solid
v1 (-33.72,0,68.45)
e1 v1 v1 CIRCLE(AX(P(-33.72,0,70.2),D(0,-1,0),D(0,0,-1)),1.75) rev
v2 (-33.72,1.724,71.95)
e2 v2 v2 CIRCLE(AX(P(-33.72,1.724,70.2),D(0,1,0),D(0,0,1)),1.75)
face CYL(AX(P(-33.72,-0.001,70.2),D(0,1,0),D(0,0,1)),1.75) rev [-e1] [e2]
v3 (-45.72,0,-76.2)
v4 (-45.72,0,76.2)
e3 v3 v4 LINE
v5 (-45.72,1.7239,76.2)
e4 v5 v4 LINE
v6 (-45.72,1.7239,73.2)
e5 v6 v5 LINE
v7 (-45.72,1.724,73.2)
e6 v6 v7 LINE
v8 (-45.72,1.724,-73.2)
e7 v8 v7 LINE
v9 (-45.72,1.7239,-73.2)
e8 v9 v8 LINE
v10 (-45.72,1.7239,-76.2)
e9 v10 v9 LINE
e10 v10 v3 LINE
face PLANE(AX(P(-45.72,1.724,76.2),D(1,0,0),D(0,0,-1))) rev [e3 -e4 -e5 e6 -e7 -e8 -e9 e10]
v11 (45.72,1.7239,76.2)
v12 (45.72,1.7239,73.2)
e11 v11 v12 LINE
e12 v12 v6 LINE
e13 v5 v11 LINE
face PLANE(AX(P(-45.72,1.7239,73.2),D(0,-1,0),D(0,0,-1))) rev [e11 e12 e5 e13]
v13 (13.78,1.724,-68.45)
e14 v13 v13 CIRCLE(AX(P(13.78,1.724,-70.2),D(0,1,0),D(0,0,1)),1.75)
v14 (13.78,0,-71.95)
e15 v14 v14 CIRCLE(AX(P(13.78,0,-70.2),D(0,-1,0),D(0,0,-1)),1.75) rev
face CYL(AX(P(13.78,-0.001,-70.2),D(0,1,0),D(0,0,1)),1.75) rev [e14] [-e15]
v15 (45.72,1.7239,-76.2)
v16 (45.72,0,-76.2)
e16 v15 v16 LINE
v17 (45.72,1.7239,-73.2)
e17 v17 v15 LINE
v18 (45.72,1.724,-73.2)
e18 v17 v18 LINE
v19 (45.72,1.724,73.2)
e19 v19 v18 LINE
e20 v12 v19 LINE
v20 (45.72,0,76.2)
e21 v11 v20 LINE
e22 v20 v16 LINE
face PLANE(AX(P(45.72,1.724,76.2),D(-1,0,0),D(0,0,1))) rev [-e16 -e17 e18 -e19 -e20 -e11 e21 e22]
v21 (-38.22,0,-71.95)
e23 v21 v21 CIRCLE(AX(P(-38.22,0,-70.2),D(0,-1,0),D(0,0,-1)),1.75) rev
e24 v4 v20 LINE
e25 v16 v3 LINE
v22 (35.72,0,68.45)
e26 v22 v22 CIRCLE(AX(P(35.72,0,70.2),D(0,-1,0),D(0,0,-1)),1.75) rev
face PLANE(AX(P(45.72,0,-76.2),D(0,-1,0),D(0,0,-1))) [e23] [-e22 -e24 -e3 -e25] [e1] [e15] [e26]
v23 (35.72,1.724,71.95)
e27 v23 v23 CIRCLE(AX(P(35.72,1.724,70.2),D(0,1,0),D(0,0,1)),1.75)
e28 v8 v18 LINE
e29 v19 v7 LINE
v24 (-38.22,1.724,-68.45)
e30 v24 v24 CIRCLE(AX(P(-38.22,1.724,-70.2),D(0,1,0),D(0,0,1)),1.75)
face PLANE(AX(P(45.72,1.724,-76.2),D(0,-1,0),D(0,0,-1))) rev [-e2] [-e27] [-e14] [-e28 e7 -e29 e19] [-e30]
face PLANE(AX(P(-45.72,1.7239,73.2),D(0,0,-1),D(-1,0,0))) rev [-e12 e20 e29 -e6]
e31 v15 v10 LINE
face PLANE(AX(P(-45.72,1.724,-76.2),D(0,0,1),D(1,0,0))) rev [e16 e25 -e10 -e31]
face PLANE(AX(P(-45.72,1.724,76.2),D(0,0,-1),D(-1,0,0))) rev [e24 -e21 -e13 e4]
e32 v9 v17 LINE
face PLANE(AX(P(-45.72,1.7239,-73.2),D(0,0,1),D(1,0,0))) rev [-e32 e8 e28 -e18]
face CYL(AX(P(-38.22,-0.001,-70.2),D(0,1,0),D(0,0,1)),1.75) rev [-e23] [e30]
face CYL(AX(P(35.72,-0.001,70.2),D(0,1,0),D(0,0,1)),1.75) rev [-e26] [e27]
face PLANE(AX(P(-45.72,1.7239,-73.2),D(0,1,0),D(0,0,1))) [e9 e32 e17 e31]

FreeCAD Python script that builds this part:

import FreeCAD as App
import Part
import Sketcher

V = App.Vector

doc = App.newDocument("Part")
body = doc.addObject("PartDesign::Body", "Body")

# Sketch on XZ plane
sketch1 = doc.addObject("Sketcher::SketchObject", "Sketch")
body.addObject(sketch1)
sketch1.AttachmentSupport = (doc.XZ_Plane, [""])
sketch1.MapMode = "FlatFace"
sketch1.addGeometry(Part.LineSegment(V(-46, -76, 0), V(-46, 76, 0)), False)
sketch1.addGeometry(Part.LineSegment(V(-46, 76, 0), V(46, 76, 0)), False)
sketch1.addGeometry(Part.LineSegment(V(46, 76, 0), V(46, -76, 0)), False)
sketch1.addGeometry(Part.LineSegment(V(46, -76, 0), V(-46, -76, 0)), False)
sketch1.addConstraint(Sketcher.Constraint("Coincident", 0, 2, 1, 1))
sketch1.addConstraint(Sketcher.Constraint("Coincident", 1, 2, 2, 1))
sketch1.addConstraint(Sketcher.Constraint("Coincident", 2, 2, 3, 1))
sketch1.addConstraint(Sketcher.Constraint("Coincident", 3, 2, 0, 1))
sketch1.addConstraint(Sketcher.Constraint("Vertical", 0))
sketch1.addConstraint(Sketcher.Constraint("Horizontal", 1))
sketch1.addConstraint(Sketcher.Constraint("Vertical", 2))
sketch1.addConstraint(Sketcher.Constraint("Horizontal", 3))
sketch1.addConstraint(Sketcher.Constraint("Symmetric", 0, 2, 2, 2, -1, 1))
sketch1.addConstraint(Sketcher.Constraint("DistanceY", 0, 1, 0, 2, 152.4))
sketch1.addConstraint(Sketcher.Constraint("DistanceX", 1, 1, 1, 2, 91.44))
pad1 = doc.addObject("PartDesign::Pad", "Pad")
body.addObject(pad1)
pad1.Profile = sketch1
pad1.Length = 1.724
pad1.Reversed = True

# Sketch on XZ plane
sketch2 = doc.addObject("Sketcher::SketchObject", "Sketch001")
body.addObject(sketch2)
sketch2.AttachmentSupport = (doc.XZ_Plane, [""])
sketch2.MapMode = "FlatFace"
sketch2.AttachmentOffset = App.Placement(V(0, 0, -1.724), App.Rotation())
sketch2.addGeometry(Part.Circle(V(-38.2, -70.2, 0), V(0, 0, 1), 1.8), False)
sketch2.addConstraint(Sketcher.Constraint("Diameter", 0, 3.5))
sketch2.addConstraint(Sketcher.Constraint("DistanceY", 0, 3, -1, 1, 70.2))
sketch2.addConstraint(Sketcher.Constraint("DistanceX", 0, 3, -1, 1, 38.22))
pocket1 = doc.addObject("PartDesign::Pocket", "Pocket")
body.addObject(pocket1)
pocket1.Profile = sketch2
pocket1.Type = "UpToFirst"
pocket1.Reversed = True

# Sketch on XZ plane
sketch3 = doc.addObject("Sketcher::SketchObject", "Sketch002")
body.addObject(sketch3)
sketch3.AttachmentSupport = (doc.XZ_Plane, [""])
sketch3.MapMode = "FlatFace"
sketch3.AttachmentOffset = App.Placement(V(0, 0, -1.724), App.Rotation())
sketch3.addGeometry(Part.Circle(V(-33.7, 70.2, 0), V(0, 0, 1), 1.8), False)
sketch3.addConstraint(Sketcher.Constraint("Diameter", 0, 3.5))
sketch3.addConstraint(Sketcher.Constraint("DistanceY", -1, 1, 0, 3, 70.2))
sketch3.addConstraint(Sketcher.Constraint("DistanceX", 0, 3, -1, 1, 33.72))
pocket2 = doc.addObject("PartDesign::Pocket", "Pocket001")
body.addObject(pocket2)
pocket2.Profile = sketch3
pocket2.Type = "UpToFirst"
pocket2.Reversed = True

# Sketch on XZ plane
sketch4 = doc.addObject("Sketcher::SketchObject", "Sketch003")
body.addObject(sketch4)
sketch4.AttachmentSupport = (doc.XZ_Plane, [""])
sketch4.MapMode = "FlatFace"
sketch4.AttachmentOffset = App.Placement(V(0, 0, -1.724), App.Rotation())
sketch4.addGeometry(Part.Circle(V(35.7, 70.2, 0), V(0, 0, 1), 1.8), False)
sketch4.addConstraint(Sketcher.Constraint("Diameter", 0, 3.5))
sketch4.addConstraint(Sketcher.Constraint("DistanceY", -1, 1, 0, 3, 70.2))
sketch4.addConstraint(Sketcher.Constraint("DistanceX", -1, 1, 0, 3, 35.72))
pocket3 = doc.addObject("PartDesign::Pocket", "Pocket002")
body.addObject(pocket3)
pocket3.Profile = sketch4
pocket3.Type = "UpToFirst"
pocket3.Reversed = True

# Sketch on XZ plane
sketch5 = doc.addObject("Sketcher::SketchObject", "Sketch004")
body.addObject(sketch5)
sketch5.AttachmentSupport = (doc.XZ_Plane, [""])
sketch5.MapMode = "FlatFace"
sketch5.AttachmentOffset = App.Placement(V(0, 0, -1.724), App.Rotation())
sketch5.addGeometry(Part.Circle(V(13.8, -70.2, 0), V(0, 0, 1), 1.8), False)
sketch5.addConstraint(Sketcher.Constraint("Diameter", 0, 3.5))
sketch5.addConstraint(Sketcher.Constraint("DistanceY", 0, 3, -1, 1, 70.2))
sketch5.addConstraint(Sketcher.Constraint("DistanceX", -1, 1, 0, 3, 13.78))
pocket4 = doc.addObject("PartDesign::Pocket", "Pocket003")
body.addObject(pocket4)
pocket4.Profile = sketch5
pocket4.Type = "UpToFirst"
pocket4.Reversed = True

# Sketch on XZ plane
sketch6 = doc.addObject("Sketcher::SketchObject", "Sketch005")
body.addObject(sketch6)
sketch6.AttachmentSupport = (doc.XZ_Plane, [""])
sketch6.MapMode = "FlatFace"
sketch6.AttachmentOffset = App.Placement(V(0, 0, -1.724), App.Rotation())
sketch6.addGeometry(Part.LineSegment(V(-45.7, -76.2, 0), V(-45.7, -73.2, 0)), False)
sketch6.addGeometry(Part.LineSegment(V(-45.7, -73.2, 0), V(45.7, -73.2, 0)), False)
sketch6.addGeometry(Part.LineSegment(V(45.7, -73.2, 0), V(45.7, -76.2, 0)), False)
sketch6.addGeometry(Part.LineSegment(V(45.7, -76.2, 0), V(-45.7, -76.2, 0)), False)
sketch6.addGeometry(Part.LineSegment(V(-45.7, 73.2, 0), V(-45.7, 76.2, 0)), False)
sketch6.addGeometry(Part.LineSegment(V(-45.7, 76.2, 0), V(45.7, 76.2, 0)), False)
sketch6.addGeometry(Part.LineSegment(V(45.7, 76.2, 0), V(45.7, 73.2, 0)), False)
sketch6.addGeometry(Part.LineSegment(V(45.7, 73.2, 0), V(-45.7, 73.2, 0)), False)
sketch6.addConstraint(Sketcher.Constraint("Coincident", 0, 2, 1, 1))
sketch6.addConstraint(Sketcher.Constraint("Coincident", 1, 2, 2, 1))
sketch6.addConstraint(Sketcher.Constraint("Coincident", 2, 2, 3, 1))
sketch6.addConstraint(Sketcher.Constraint("Coincident", 3, 2, 0, 1))
sketch6.addConstraint(Sketcher.Constraint("Coincident", 4, 2, 5, 1))
sketch6.addConstraint(Sketcher.Constraint("Coincident", 5, 2, 6, 1))
sketch6.addConstraint(Sketcher.Constraint("Coincident", 6, 2, 7, 1))
sketch6.addConstraint(Sketcher.Constraint("Coincident", 7, 2, 4, 1))
sketch6.addConstraint(Sketcher.Constraint("Vertical", 0))
sketch6.addConstraint(Sketcher.Constraint("Horizontal", 1))
sketch6.addConstraint(Sketcher.Constraint("Vertical", 2))
sketch6.addConstraint(Sketcher.Constraint("Horizontal", 3))
sketch6.addConstraint(Sketcher.Constraint("Vertical", 4))
sketch6.addConstraint(Sketcher.Constraint("Horizontal", 5))
sketch6.addConstraint(Sketcher.Constraint("Vertical", 6))
sketch6.addConstraint(Sketcher.Constraint("Horizontal", 7))
sketch6.addConstraint(Sketcher.Constraint("Symmetric", 2, 2, 4, 2, -1, 1))
sketch6.addConstraint(Sketcher.Constraint("Symmetric", 0, 2, 6, 2, -1, 1))
sketch6.addConstraint(Sketcher.Constraint("Vertical", 3, 2, 4, 2))
sketch6.addConstraint(Sketcher.Constraint("DistanceY", 0, 1, 0, 2, 3.0))
sketch6.addConstraint(Sketcher.Constraint("DistanceX", 1, 1, 1, 2, 91.44))
sketch6.addConstraint(Sketcher.Constraint("DistanceY", 0, 2, -1, 1, 73.2))
pocket5 = doc.addObject("PartDesign::Pocket", "Pocket004")
body.addObject(pocket5)
pocket5.Profile = sketch6
pocket5.Length = 0.0001
pocket5.Reversed = True

doc.recompute()
